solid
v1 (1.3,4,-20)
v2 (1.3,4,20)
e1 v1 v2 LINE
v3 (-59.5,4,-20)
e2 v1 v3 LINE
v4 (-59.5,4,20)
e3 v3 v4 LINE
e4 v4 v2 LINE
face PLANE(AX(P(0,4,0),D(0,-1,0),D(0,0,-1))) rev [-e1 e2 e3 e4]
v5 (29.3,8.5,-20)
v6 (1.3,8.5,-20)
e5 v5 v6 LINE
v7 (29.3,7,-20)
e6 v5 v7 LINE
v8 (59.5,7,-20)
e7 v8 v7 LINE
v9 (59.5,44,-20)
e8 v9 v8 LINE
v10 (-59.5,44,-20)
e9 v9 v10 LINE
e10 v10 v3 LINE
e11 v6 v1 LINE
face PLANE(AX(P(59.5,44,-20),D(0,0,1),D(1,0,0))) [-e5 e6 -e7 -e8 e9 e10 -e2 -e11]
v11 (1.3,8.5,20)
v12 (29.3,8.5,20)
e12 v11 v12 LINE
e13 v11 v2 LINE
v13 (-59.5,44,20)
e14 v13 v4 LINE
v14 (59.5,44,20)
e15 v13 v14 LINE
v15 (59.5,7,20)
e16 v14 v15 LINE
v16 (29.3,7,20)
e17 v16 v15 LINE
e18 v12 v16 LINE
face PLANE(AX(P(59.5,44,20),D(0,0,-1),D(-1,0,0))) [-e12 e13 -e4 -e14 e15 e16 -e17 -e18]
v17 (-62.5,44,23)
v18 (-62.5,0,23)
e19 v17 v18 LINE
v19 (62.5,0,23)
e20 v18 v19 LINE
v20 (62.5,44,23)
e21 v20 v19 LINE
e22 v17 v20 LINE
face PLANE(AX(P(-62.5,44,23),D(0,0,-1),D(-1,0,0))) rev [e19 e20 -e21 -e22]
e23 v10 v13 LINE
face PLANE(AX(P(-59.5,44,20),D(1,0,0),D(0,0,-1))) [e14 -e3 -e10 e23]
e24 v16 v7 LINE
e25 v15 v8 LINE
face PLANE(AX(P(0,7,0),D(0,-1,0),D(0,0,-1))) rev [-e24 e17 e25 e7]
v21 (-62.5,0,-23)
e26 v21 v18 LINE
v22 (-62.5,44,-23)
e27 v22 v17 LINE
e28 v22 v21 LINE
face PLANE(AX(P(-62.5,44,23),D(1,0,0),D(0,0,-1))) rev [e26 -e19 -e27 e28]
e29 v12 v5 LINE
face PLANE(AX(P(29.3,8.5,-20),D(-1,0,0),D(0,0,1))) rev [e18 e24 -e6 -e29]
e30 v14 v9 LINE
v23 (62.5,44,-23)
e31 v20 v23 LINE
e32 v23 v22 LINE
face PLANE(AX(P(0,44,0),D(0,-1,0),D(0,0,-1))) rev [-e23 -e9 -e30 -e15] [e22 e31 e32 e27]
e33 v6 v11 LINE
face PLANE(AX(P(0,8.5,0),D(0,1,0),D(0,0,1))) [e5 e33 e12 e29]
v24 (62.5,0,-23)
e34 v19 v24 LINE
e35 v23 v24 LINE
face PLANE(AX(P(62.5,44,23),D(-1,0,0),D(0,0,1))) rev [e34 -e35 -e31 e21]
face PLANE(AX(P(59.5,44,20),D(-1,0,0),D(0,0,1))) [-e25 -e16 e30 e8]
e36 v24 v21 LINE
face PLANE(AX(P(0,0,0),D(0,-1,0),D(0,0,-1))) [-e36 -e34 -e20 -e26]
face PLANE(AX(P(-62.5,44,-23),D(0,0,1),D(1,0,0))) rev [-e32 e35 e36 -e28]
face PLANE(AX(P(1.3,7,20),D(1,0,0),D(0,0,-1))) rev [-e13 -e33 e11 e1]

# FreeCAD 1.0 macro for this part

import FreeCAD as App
import Part
import Sketcher
Q = App.Units.Quantity


def add_polygon(sketch, points):
    """Adds a closed chain of lines whose ends are joined by coincident constraints."""
    first, n = sketch.GeometryCount, len(points)
    for a, b in zip(points, points[1:] + points[:1]):
        sketch.addGeometry(Part.LineSegment(App.Vector(*a, 0), App.Vector(*b, 0)), False)
    for i in range(n):
        sketch.addConstraint(Sketcher.Constraint("Coincident", first + i, 2, first + (i + 1) % n, 1))

doc = App.newDocument("Part")
body = doc.addObject("PartDesign::Body", "Body")

# Sketch on XZ plane
sketch1 = body.newObject("Sketcher::SketchObject", "Sketch")
sketch1.AttachmentSupport = (doc.getObject("XZ_Plane"), [""])
sketch1.MapMode = "FlatFace"
add_polygon(sketch1, [(-60, -20), (-60, 20), (60, 20), (60, -20)])  # lines 0-3
sketch1.addConstraint(Sketcher.Constraint("Vertical", 0))
sketch1.addConstraint(Sketcher.Constraint("Horizontal", 1))
sketch1.addConstraint(Sketcher.Constraint("Vertical", 2))
sketch1.addConstraint(Sketcher.Constraint("Horizontal", 3))
sketch1.addConstraint(Sketcher.Constraint("Symmetric", 0, 2, 2, 2, -1, 1))
sketch1.addConstraint(Sketcher.Constraint("DistanceX", 1, 1, 1, 2, Q("119 mm")))
sketch1.addConstraint(Sketcher.Constraint("DistanceY", 0, 1, 0, 2, Q("40 mm")))
pad1 = body.newObject("PartDesign::Pad", "Pad")
pad1.Profile = sketch1
pad1.Length = 4
pad1.Reversed = True

# Sketch on XZ plane
sketch2 = body.newObject("Sketcher::SketchObject", "Sketch001")
sketch2.AttachmentSupport = (doc.getObject("XZ_Plane"), [""])
sketch2.MapMode = "FlatFace"
add_polygon(sketch2, [(-62, -23), (-62, 23), (62, 23), (62, -23)])  # lines 0-3
add_polygon(sketch2, [(60, 20), (-60, 20), (-60, -20), (60, -20)])  # lines 4-7
sketch2.addConstraint(Sketcher.Constraint("Vertical", 0))
sketch2.addConstraint(Sketcher.Constraint("Horizontal", 1))
sketch2.addConstraint(Sketcher.Constraint("Vertical", 2))
sketch2.addConstraint(Sketcher.Constraint("Horizontal", 3))
sketch2.addConstraint(Sketcher.Constraint("Horizontal", 4))
sketch2.addConstraint(Sketcher.Constraint("Vertical", 5))
sketch2.addConstraint(Sketcher.Constraint("Horizontal", 6))
sketch2.addConstraint(Sketcher.Constraint("Vertical", 7))
sketch2.addConstraint(Sketcher.Constraint("Symmetric", 0, 2, 2, 2, -1, 1))
sketch2.addConstraint(Sketcher.Constraint("Symmetric", 4, 2, 6, 2, -1, 1))
sketch2.addConstraint(Sketcher.Constraint("DistanceX", 1, 1, 1, 2, Q("125 mm")))
sketch2.addConstraint(Sketcher.Constraint("DistanceX", 4, 2, 4, 1, Q("119 mm")))
sketch2.addConstraint(Sketcher.Constraint("DistanceY", 0, 1, 0, 2, Q("46 mm")))
sketch2.addConstraint(Sketcher.Constraint("DistanceY", 5, 2, 5, 1, Q("40 mm")))
pad2 = body.newObject("PartDesign::Pad", "Pad001")
pad2.Profile = sketch2
pad2.Length = 44
pad2.Reversed = True

# Sketch on XZ plane
sketch3 = body.newObject("Sketcher::SketchObject", "Sketch002")
sketch3.AttachmentSupport = (doc.getObject("XZ_Plane"), [""])
sketch3.MapMode = "FlatFace"
sketch3.AttachmentOffset = App.Placement(App.Vector(0, 0, -4), App.Rotation())
add_polygon(sketch3, [(1, -20), (1, 20), (60, 20), (60, -20)])  # lines 0-3
sketch3.addConstraint(Sketcher.Constraint("Vertical", 0))
sketch3.addConstraint(Sketcher.Constraint("Horizontal", 1))
sketch3.addConstraint(Sketcher.Constraint("Vertical", 2))
sketch3.addConstraint(Sketcher.Constraint("Horizontal", 3))
sketch3.addConstraint(Sketcher.Constraint("DistanceY", 0, 1, 0, 2, Q("40 mm")))
sketch3.addConstraint(Sketcher.Constraint("DistanceX", 1, 1, 1, 2, Q("58.2 mm")))
sketch3.addConstraint(Sketcher.Constraint("DistanceY", -1, 1, 0, 2, Q("20 mm")))
sketch3.addConstraint(Sketcher.Constraint("DistanceX", -1, 1, 0, 2, Q("1.3 mm")))
pad3 = body.newObject("PartDesign::Pad", "Pad002")
pad3.Profile = sketch3
pad3.Length = 3
pad3.Reversed = True

# Sketch on XZ plane
sketch4 = body.newObject("Sketcher::SketchObject", "Sketch003")
sketch4.AttachmentSupport = (doc.getObject("XZ_Plane"), [""])
sketch4.MapMode = "FlatFace"
sketch4.AttachmentOffset = App.Placement(App.Vector(0, 0, -7), App.Rotation())
add_polygon(sketch4, [(1, -20), (1, 20), (29, 20), (29, -20)])  # lines 0-3
sketch4.addConstraint(Sketcher.Constraint("Vertical", 0))
sketch4.addConstraint(Sketcher.Constraint("Horizontal", 1))
sketch4.addConstraint(Sketcher.Constraint("Vertical", 2))
sketch4.addConstraint(Sketcher.Constraint("Horizontal", 3))
sketch4.addConstraint(Sketcher.Constraint("DistanceX", 1, 1, 1, 2, Q("28 mm")))
sketch4.addConstraint(Sketcher.Constraint("DistanceY", 0, 1, 0, 2, Q("40 mm")))
sketch4.addConstraint(Sketcher.Constraint("DistanceY", -1, 1, 0, 2, Q("20 mm")))
sketch4.addConstraint(Sketcher.Constraint("DistanceX", -1, 1, 0, 2, Q("1.3 mm")))
pad4 = body.newObject("PartDesign::Pad", "Pad003")
pad4.Profile = sketch4
pad4.Length = 1.5
pad4.Reversed = True

doc.recompute()
